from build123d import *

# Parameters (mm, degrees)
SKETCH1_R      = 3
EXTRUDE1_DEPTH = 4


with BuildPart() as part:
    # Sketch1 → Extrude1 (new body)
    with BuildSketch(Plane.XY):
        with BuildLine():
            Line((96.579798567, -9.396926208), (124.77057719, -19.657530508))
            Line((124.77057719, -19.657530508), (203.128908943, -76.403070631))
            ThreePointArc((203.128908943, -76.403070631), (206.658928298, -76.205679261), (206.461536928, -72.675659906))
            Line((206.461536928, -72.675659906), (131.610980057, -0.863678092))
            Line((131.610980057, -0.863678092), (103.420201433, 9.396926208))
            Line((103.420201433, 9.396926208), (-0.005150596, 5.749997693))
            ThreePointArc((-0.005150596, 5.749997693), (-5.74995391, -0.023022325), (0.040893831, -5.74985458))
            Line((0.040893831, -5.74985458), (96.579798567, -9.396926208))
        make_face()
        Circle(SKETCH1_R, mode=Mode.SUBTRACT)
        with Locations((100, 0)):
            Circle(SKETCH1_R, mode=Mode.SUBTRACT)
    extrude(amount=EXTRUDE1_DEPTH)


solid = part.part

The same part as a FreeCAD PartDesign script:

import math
import FreeCAD as App
import Part
import Sketcher

V = App.Vector
Q = App.Units.Quantity

doc = App.newDocument("Part")
body = doc.addObject("PartDesign::Body", "Body")

# Sketch on XY plane
sketch1 = body.newObject("Sketcher::SketchObject", "Sketch")
sketch1.AttachmentSupport = (doc.getObject("XY_Plane"), [""])
sketch1.MapMode = "FlatFace"
sketch1.addGeometry(Part.LineSegment(V(96.6, -9.4, 0), V(124.8, -19.7, 0)), False)
sketch1.addGeometry(Part.LineSegment(V(124.8, -19.7, 0), V(203.1, -76.4, 0)), False)
sketch1.addGeometry(Part.ArcOfCircle(Part.Circle(V(204.8, -74.5, 0), V(0, 0, 1), 2.5), math.radians(-132), math.radians(48)), False)
sketch1.addGeometry(Part.LineSegment(V(206.5, -72.7, 0), V(131.6, -0.9, 0)), False)
sketch1.addGeometry(Part.LineSegment(V(131.6, -0.9, 0), V(103.4, 9.4, 0)), False)
sketch1.addGeometry(Part.LineSegment(V(103.4, 9.4, 0), V(0, 5.7, 0)), False)
sketch1.addGeometry(Part.ArcOfCircle(Part.Circle(V(0, 0, 0), V(0, 0, 1), 5.8), math.radians(90), math.radians(270)), False)
sketch1.addGeometry(Part.LineSegment(V(0, -5.7, 0), V(96.6, -9.4, 0)), False)
sketch1.addGeometry(Part.Circle(V(0, 0, 0), V(0, 0, 1), 3), False)
sketch1.addGeometry(Part.Circle(V(100, 0, 0), V(0, 0, 1), 3), False)
sketch1.addConstraint(Sketcher.Constraint("Coincident", 0, 2, 1, 1))
sketch1.addConstraint(Sketcher.Constraint("Coincident", 1, 2, 2, 1))
sketch1.addConstraint(Sketcher.Constraint("Coincident", 2, 2, 3, 1))
sketch1.addConstraint(Sketcher.Constraint("Coincident", 3, 2, 4, 1))
sketch1.addConstraint(Sketcher.Constraint("Coincident", 4, 2, 5, 1))
sketch1.addConstraint(Sketcher.Constraint("Coincident", 5, 2, 6, 1))
sketch1.addConstraint(Sketcher.Constraint("Coincident", 6, 2, 7, 1))
sketch1.addConstraint(Sketcher.Constraint("Coincident", 7, 2, 0, 1))
sketch1.addConstraint(Sketcher.Constraint("Coincident", 6, 3, -1, 1))
sketch1.addConstraint(Sketcher.Constraint("Coincident", 8, 3, -1, 1))
sketch1.addConstraint(Sketcher.Constraint("Equal", 8, 9))
sketch1.addConstraint(Sketcher.Constraint("PointOnObject", 9, 3, -1))
sketch1.addConstraint(Sketcher.Constraint("Parallel", 0, 4))
sketch1.addConstraint(Sketcher.Constraint("Equal", 0, 4))
sketch1.addConstraint(Sketcher.Constraint("Diameter", 8, 6.0))
sketch1.addConstraint(Sketcher.Constraint("Radius", 2, 2.5))
sketch1.addConstraint(Sketcher.Constraint("Angle", 0, Q("-20 deg")))
sketch1.addConstraint(Sketcher.Constraint("Radius", 6, 5.75))
sketch1.addConstraint(Sketcher.Constraint("Distance", 0, 30.0))
sketch1.addConstraint(Sketcher.Constraint("DistanceX", -1, 1, 9, 3, 100.0))
sketch1.addConstraint(Sketcher.Constraint("DistanceX", -1, 1, 4, 2, 103.420201))
sketch1.addConstraint(Sketcher.Constraint("DistanceX", -1, 1, 7, 2, 96.579799))
sketch1.addConstraint(Sketcher.Constraint("Distance", 1, 96.74753))
sketch1.addConstraint(Sketcher.Constraint("Distance", 3, 103.728331))
sketch1.addConstraint(Sketcher.Constraint("Distance", 5, 103.48963))
sketch1.addConstraint(Sketcher.Constraint("Distance", 7, 96.60777))
sketch1.addConstraint(Sketcher.Constraint("DistanceY", 0, 2, -1, 1, 19.657531))
sketch1.addConstraint(Sketcher.Constraint("DistanceX", -1, 1, 1, 2, 203.128909))
sketch1.addConstraint(Sketcher.Constraint("DistanceY", 2, 2, -1, 1, 72.67566))
sketch1.addConstraint(Sketcher.Constraint("DistanceX", -1, 1, 2, 3, 204.795223))
pad1 = body.newObject("PartDesign::Pad", "Pad")
pad1.Profile = sketch1
pad1.Length = 4

doc.recompute()
